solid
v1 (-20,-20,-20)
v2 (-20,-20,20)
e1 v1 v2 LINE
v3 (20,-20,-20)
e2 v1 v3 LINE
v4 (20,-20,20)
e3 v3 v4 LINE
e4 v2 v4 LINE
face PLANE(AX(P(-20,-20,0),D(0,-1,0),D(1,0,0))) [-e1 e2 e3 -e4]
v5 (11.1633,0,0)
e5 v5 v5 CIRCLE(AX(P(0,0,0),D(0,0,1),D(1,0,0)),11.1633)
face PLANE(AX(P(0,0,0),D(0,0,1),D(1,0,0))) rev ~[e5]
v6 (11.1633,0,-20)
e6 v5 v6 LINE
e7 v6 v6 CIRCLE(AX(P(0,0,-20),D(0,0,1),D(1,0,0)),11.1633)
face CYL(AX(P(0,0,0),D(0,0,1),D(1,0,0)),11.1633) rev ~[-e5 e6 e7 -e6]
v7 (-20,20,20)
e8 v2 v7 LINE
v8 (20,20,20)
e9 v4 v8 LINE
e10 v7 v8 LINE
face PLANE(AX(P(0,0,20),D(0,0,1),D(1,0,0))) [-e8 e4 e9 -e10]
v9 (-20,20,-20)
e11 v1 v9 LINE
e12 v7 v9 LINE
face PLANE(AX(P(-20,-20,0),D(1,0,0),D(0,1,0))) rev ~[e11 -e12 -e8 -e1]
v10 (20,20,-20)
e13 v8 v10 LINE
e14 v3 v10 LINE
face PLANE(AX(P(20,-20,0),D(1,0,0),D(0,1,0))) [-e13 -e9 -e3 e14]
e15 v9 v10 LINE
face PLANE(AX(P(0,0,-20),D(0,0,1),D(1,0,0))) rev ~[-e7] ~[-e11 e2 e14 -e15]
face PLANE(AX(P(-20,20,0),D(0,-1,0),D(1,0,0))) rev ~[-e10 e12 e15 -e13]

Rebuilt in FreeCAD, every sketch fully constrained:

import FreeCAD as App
import Part
import Sketcher

V = App.Vector
Q = App.Units.Quantity


def add_polygon(sketch, points):
    """Adds a closed chain of lines whose ends are joined by coincident constraints."""
    first, n = sketch.GeometryCount, len(points)
    for a, b in zip(points, points[1:] + points[:1]):
        sketch.addGeometry(Part.LineSegment(App.Vector(*a, 0), App.Vector(*b, 0)), False)
    for i in range(n):
        sketch.addConstraint(Sketcher.Constraint("Coincident", first + i, 2, first + (i + 1) % n, 1))

doc = App.newDocument("Part")
body = doc.addObject("PartDesign::Body", "Body")

sketch1 = doc.addObject("Sketcher::SketchObject", "Sketch")
body.addObject(sketch1)
sketch1.AttachmentSupport = (doc.XY_Plane, [""])
sketch1.MapMode = "FlatFace"
add_polygon(sketch1, [(-20, 20), (-20, -20), (20, -20), (20, 20)])
sketch1.addConstraint([
    Sketcher.Constraint("Vertical", 0),
    Sketcher.Constraint("Horizontal", 1),
    Sketcher.Constraint("Vertical", 2),
    Sketcher.Constraint("Horizontal", 3),
    Sketcher.Constraint("Symmetric", 0, 2, 2, 2, -1, 1),
    Sketcher.Constraint("Equal", 3, 0),
    Sketcher.Constraint("DistanceX", 1, 1, 1, 2, Q("40 mm")),
])
pad1 = doc.addObject("PartDesign::Pad", "Pad")
body.addObject(pad1)
pad1.Profile = sketch1
pad1.Length = 40
pad1.Midplane = True

sketch2 = doc.addObject("Sketcher::SketchObject", "Sketch001")
body.addObject(sketch2)
sketch2.AttachmentSupport = (doc.XY_Plane, [""])
sketch2.MapMode = "FlatFace"
sketch2.addGeometry(Part.Circle(V(0, 0, 0), V(0, 0, 1), 11), False)
sketch2.addConstraint([
    Sketcher.Constraint("Coincident", 0, 3, -1, 1),
    Sketcher.Constraint("Diameter", 0, Q("22.3266 mm")),
])
pocket1 = doc.addObject("PartDesign::Pocket", "Pocket")
body.addObject(pocket1)
pocket1.Profile = sketch2
pocket1.Type = "ThroughAll"

doc.recompute()
